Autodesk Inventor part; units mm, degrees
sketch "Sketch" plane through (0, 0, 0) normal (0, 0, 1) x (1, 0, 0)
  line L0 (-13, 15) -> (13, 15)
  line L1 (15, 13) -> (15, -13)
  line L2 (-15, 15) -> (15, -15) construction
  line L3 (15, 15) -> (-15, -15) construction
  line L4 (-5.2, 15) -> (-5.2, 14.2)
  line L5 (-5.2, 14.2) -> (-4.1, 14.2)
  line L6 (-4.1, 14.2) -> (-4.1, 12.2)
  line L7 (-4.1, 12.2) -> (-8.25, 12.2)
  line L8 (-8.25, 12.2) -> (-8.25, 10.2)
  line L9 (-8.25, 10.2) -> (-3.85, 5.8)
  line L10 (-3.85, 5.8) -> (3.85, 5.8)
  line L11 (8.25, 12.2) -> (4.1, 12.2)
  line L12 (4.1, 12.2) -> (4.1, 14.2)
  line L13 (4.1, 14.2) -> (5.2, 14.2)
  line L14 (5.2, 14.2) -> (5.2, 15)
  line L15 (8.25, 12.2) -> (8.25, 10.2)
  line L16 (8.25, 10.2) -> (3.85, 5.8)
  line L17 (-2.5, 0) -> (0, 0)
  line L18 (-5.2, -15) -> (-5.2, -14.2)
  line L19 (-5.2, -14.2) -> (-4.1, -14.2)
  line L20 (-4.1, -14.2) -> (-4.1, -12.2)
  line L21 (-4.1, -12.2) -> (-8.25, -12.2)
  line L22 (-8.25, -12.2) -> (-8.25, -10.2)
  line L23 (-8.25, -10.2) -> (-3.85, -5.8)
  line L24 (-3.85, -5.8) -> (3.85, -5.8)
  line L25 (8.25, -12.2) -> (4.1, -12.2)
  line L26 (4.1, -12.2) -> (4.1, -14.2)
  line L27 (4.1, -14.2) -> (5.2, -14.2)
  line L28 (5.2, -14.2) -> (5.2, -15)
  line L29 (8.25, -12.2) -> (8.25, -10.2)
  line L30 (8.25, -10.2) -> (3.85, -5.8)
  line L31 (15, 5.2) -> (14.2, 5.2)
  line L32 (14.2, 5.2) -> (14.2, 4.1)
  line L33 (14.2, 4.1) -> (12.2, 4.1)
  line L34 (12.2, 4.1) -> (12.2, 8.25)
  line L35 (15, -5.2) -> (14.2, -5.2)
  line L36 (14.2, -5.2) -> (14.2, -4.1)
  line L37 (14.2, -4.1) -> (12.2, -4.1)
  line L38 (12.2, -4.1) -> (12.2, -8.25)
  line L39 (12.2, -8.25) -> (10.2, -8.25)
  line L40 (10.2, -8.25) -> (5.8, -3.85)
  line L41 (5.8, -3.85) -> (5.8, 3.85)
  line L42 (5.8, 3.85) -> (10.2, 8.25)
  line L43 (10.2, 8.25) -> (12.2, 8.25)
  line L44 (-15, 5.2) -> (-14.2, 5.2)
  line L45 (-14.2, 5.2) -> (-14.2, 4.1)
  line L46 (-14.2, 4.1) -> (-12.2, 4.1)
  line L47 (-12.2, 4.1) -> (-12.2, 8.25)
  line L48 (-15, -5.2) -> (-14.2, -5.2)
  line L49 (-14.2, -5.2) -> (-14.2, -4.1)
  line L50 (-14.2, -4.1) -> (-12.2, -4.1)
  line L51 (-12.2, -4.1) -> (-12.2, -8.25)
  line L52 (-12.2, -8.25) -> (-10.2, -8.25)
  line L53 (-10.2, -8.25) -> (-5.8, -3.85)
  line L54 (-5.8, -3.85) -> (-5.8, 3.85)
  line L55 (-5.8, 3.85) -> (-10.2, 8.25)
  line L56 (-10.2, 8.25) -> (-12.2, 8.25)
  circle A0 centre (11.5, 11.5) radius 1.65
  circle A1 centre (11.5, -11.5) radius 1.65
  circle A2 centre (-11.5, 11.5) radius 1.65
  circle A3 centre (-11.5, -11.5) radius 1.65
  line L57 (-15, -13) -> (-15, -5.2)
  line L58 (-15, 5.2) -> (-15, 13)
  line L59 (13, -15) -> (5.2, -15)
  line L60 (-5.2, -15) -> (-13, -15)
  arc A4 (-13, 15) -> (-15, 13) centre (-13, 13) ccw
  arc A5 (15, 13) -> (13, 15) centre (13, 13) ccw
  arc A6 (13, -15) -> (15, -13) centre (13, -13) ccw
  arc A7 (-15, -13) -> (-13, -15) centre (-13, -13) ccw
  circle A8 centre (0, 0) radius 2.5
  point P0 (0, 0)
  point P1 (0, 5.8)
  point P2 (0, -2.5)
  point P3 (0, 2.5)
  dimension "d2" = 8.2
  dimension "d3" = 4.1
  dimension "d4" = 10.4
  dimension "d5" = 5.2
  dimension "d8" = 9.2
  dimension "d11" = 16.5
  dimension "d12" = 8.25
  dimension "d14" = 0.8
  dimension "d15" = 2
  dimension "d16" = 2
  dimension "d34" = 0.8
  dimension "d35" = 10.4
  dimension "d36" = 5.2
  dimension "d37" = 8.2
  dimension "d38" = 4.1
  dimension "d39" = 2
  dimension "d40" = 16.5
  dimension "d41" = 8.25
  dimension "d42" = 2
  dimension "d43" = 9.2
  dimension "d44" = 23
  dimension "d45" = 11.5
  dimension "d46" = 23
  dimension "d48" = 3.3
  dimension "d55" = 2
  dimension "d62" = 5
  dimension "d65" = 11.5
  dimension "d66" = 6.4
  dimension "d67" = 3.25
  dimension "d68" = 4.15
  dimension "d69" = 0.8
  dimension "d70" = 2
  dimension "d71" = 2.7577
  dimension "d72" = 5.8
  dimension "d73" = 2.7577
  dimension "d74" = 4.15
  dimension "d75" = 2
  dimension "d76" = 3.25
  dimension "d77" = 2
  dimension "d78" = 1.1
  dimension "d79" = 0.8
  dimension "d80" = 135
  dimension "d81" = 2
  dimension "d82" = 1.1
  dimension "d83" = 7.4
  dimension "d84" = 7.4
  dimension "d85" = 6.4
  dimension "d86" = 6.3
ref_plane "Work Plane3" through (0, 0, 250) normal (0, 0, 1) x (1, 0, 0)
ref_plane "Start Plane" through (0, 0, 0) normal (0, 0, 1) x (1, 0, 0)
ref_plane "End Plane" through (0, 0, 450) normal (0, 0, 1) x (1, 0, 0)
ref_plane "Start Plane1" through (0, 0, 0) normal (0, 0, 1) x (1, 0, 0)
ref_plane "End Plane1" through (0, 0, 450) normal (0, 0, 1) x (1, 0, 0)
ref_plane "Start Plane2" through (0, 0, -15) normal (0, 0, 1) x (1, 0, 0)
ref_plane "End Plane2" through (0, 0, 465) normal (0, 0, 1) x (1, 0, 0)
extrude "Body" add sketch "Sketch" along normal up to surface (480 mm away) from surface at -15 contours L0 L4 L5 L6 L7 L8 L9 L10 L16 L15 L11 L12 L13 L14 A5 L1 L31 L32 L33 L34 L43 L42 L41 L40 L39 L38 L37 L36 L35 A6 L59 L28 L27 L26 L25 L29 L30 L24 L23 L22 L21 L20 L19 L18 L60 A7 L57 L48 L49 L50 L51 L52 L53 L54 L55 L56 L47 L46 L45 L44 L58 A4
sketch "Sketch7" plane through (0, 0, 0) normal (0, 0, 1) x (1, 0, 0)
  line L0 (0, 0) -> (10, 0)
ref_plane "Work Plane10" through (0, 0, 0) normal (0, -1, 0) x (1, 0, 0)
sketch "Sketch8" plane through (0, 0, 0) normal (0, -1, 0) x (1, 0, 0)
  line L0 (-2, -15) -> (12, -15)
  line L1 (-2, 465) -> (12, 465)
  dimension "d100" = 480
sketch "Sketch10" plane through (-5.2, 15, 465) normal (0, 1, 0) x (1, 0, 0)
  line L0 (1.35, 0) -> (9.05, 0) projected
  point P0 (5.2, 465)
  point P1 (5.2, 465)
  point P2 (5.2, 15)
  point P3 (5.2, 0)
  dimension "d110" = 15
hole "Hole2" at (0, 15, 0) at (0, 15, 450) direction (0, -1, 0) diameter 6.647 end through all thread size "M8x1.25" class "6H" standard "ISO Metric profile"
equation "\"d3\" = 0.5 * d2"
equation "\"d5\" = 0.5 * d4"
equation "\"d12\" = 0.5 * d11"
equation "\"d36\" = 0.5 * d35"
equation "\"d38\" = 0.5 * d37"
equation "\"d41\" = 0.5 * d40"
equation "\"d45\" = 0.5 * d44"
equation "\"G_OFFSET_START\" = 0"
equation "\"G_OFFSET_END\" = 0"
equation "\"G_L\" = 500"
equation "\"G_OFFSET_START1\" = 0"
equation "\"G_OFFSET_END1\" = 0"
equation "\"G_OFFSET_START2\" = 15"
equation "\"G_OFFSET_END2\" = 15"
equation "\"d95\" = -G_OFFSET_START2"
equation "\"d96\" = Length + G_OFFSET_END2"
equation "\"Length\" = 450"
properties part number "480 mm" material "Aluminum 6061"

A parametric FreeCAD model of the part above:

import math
import FreeCAD as App
import Part
import Sketcher

V = App.Vector
Q = App.Units.Quantity

doc = App.newDocument("Part")
params = doc.addObject("Spreadsheet::Sheet", "Params")
for row, (alias, value) in enumerate([
    ("sketch1_diameter", "5 mm"),
    ("sketch1_radius", "2 mm"),
    ("sketch1_diameter2", "3.3 mm"),
    ("sketch1_width", "2 mm"),
    ("sketch1_width2", "0.8 mm"),
    ("pad1_length", "480 mm"),
    ("hole_diameter", "6.647 mm"),
], start=1):
    params.set(f"A{row}", alias)
    params.set(f"B{row}", "=" + value)
    params.setAlias(f"B{row}", alias)

body = doc.addObject("PartDesign::Body", "Body")

sketch1 = body.newObject("Sketcher::SketchObject", "Sketch")
sketch1.AttachmentSupport = (doc.getObject("XY_Plane"), [""])
sketch1.MapMode = "FlatFace"
sketch1.AttachmentOffset = App.Placement(V(0, 0, -15), App.Rotation())
sketch1.addGeometry([
    Part.LineSegment(V(-5.2, 15, 0), V(-13, 15, 0)),
    Part.ArcOfCircle(Part.Circle(V(-13, 13, 0), V(0, 0, 1), 2), math.radians(90), math.radians(180)),
    Part.LineSegment(V(-15, 13, 0), V(-15, 5.2, 0)),
    Part.LineSegment(V(-15, 5.2, 0), V(-14.2, 5.2, 0)),
    Part.LineSegment(V(-14.2, 5.2, 0), V(-14.2, 4.1, 0)),
    Part.LineSegment(V(-14.2, 4.1, 0), V(-12.2, 4.1, 0)),
    Part.LineSegment(V(-12.2, 4.1, 0), V(-12.2, 8.25, 0)),
    Part.LineSegment(V(-12.2, 8.25, 0), V(-10.2, 8.25, 0)),
    Part.LineSegment(V(-10.2, 8.25, 0), V(-5.8, 3.85, 0)),
    Part.LineSegment(V(-5.8, 3.85, 0), V(-5.8, -3.85, 0)),
    Part.LineSegment(V(-5.8, -3.85, 0), V(-10.2, -8.25, 0)),
    Part.LineSegment(V(-10.2, -8.25, 0), V(-12.2, -8.25, 0)),
    Part.LineSegment(V(-12.2, -8.25, 0), V(-12.2, -4.1, 0)),
    Part.LineSegment(V(-12.2, -4.1, 0), V(-14.2, -4.1, 0)),
    Part.LineSegment(V(-14.2, -4.1, 0), V(-14.2, -5.2, 0)),
    Part.LineSegment(V(-14.2, -5.2, 0), V(-15, -5.2, 0)),
    Part.LineSegment(V(-15, -5.2, 0), V(-15, -13, 0)),
    Part.ArcOfCircle(Part.Circle(V(-13, -13, 0), V(0, 0, 1), 2), math.radians(180), math.radians(270)),
    Part.LineSegment(V(-13, -15, 0), V(-5.2, -15, 0)),
    Part.LineSegment(V(-5.2, -15, 0), V(-5.2, -14.2, 0)),
    Part.LineSegment(V(-5.2, -14.2, 0), V(-4.1, -14.2, 0)),
    Part.LineSegment(V(-4.1, -14.2, 0), V(-4.1, -12.2, 0)),
    Part.LineSegment(V(-4.1, -12.2, 0), V(-8.25, -12.2, 0)),
    Part.LineSegment(V(-8.25, -12.2, 0), V(-8.25, -10.2, 0)),
    Part.LineSegment(V(-8.25, -10.2, 0), V(-3.85, -5.8, 0)),
    Part.LineSegment(V(-3.85, -5.8, 0), V(3.85, -5.8, 0)),
    Part.LineSegment(V(3.85, -5.8, 0), V(8.25, -10.2, 0)),
    Part.LineSegment(V(8.25, -10.2, 0), V(8.25, -12.2, 0)),
    Part.LineSegment(V(8.25, -12.2, 0), V(4.1, -12.2, 0)),
    Part.LineSegment(V(4.1, -12.2, 0), V(4.1, -14.2, 0)),
    Part.LineSegment(V(4.1, -14.2, 0), V(5.2, -14.2, 0)),
    Part.LineSegment(V(5.2, -14.2, 0), V(5.2, -15, 0)),
    Part.LineSegment(V(5.2, -15, 0), V(13, -15, 0)),
    Part.ArcOfCircle(Part.Circle(V(13, -13, 0), V(0, 0, 1), 2), math.radians(-90), math.radians(0)),
    Part.LineSegment(V(15, -13, 0), V(15, -5.2, 0)),
    Part.LineSegment(V(15, -5.2, 0), V(14.2, -5.2, 0)),
    Part.LineSegment(V(14.2, -5.2, 0), V(14.2, -4.1, 0)),
    Part.LineSegment(V(14.2, -4.1, 0), V(12.2, -4.1, 0)),
    Part.LineSegment(V(12.2, -4.1, 0), V(12.2, -8.25, 0)),
    Part.LineSegment(V(12.2, -8.25, 0), V(10.2, -8.25, 0)),
    Part.LineSegment(V(10.2, -8.25, 0), V(5.8, -3.85, 0)),
    Part.LineSegment(V(5.8, -3.85, 0), V(5.8, 3.85, 0)),
    Part.LineSegment(V(5.8, 3.85, 0), V(10.2, 8.25, 0)),
    Part.LineSegment(V(10.2, 8.25, 0), V(12.2, 8.25, 0)),
    Part.LineSegment(V(12.2, 8.25, 0), V(12.2, 4.1, 0)),
    Part.LineSegment(V(12.2, 4.1, 0), V(14.2, 4.1, 0)),
    Part.LineSegment(V(14.2, 4.1, 0), V(14.2, 5.2, 0)),
    Part.LineSegment(V(14.2, 5.2, 0), V(15, 5.2, 0)),
    Part.LineSegment(V(15, 5.2, 0), V(15, 13, 0)),
    Part.ArcOfCircle(Part.Circle(V(13, 13, 0), V(0, 0, 1), 2), math.radians(0), math.radians(90)),
    Part.LineSegment(V(13, 15, 0), V(5.2, 15, 0)),
    Part.LineSegment(V(5.2, 15, 0), V(5.2, 14.2, 0)),
    Part.LineSegment(V(5.2, 14.2, 0), V(4.1, 14.2, 0)),
    Part.LineSegment(V(4.1, 14.2, 0), V(4.1, 12.2, 0)),
    Part.LineSegment(V(4.1, 12.2, 0), V(8.25, 12.2, 0)),
    Part.LineSegment(V(8.25, 12.2, 0), V(8.25, 10.2, 0)),
    Part.LineSegment(V(8.25, 10.2, 0), V(3.85, 5.8, 0)),
    Part.LineSegment(V(3.85, 5.8, 0), V(-3.85, 5.8, 0)),
    Part.LineSegment(V(-3.85, 5.8, 0), V(-8.25, 10.2, 0)),
    Part.LineSegment(V(-8.25, 10.2, 0), V(-8.25, 12.2, 0)),
    Part.LineSegment(V(-8.25, 12.2, 0), V(-4.1, 12.2, 0)),
    Part.LineSegment(V(-4.1, 12.2, 0), V(-4.1, 14.2, 0)),
    Part.LineSegment(V(-4.1, 14.2, 0), V(-5.2, 14.2, 0)),
    Part.LineSegment(V(-5.2, 14.2, 0), V(-5.2, 15, 0)),
    Part.Circle(V(-11.5, -11.5, 0), V(0, 0, 1), 1.65),
    Part.Circle(V(11.5, -11.5, 0), V(0, 0, 1), 1.65),
    Part.Circle(V(-11.5, 11.5, 0), V(0, 0, 1), 1.65),
    Part.Circle(V(0, 0, 0), V(0, 0, 1), 2.5),
    Part.Circle(V(11.5, 11.5, 0), V(0, 0, 1), 1.65),
], False)
sketch1.addConstraint([
    Sketcher.Constraint("Tangent", 0, 2, 1, 1),
    Sketcher.Constraint("Tangent", 1, 2, 2, 1),
    Sketcher.Constraint("Coincident", 2, 2, 3, 1),
    Sketcher.Constraint("Coincident", 3, 2, 4, 1),
    Sketcher.Constraint("Coincident", 4, 2, 5, 1),
    Sketcher.Constraint("Coincident", 5, 2, 6, 1),
    Sketcher.Constraint("Coincident", 6, 2, 7, 1),
    Sketcher.Constraint("Coincident", 7, 2, 8, 1),
    Sketcher.Constraint("Coincident", 8, 2, 9, 1),
    Sketcher.Constraint("Coincident", 9, 2, 10, 1),
    Sketcher.Constraint("Coincident", 10, 2, 11, 1),
    Sketcher.Constraint("Coincident", 11, 2, 12, 1),
    Sketcher.Constraint("Coincident", 12, 2, 13, 1),
    Sketcher.Constraint("Coincident", 13, 2, 14, 1),
    Sketcher.Constraint("Coincident", 14, 2, 15, 1),
    Sketcher.Constraint("Coincident", 15, 2, 16, 1),
    Sketcher.Constraint("Tangent", 16, 2, 17, 1),
    Sketcher.Constraint("Tangent", 17, 2, 18, 1),
    Sketcher.Constraint("Coincident", 18, 2, 19, 1),
    Sketcher.Constraint("Coincident", 19, 2, 20, 1),
    Sketcher.Constraint("Coincident", 20, 2, 21, 1),
    Sketcher.Constraint("Coincident", 21, 2, 22, 1),
    Sketcher.Constraint("Coincident", 22, 2, 23, 1),
    Sketcher.Constraint("Coincident", 23, 2, 24, 1),
    Sketcher.Constraint("Coincident", 24, 2, 25, 1),
    Sketcher.Constraint("Coincident", 25, 2, 26, 1),
    Sketcher.Constraint("Coincident", 26, 2, 27, 1),
    Sketcher.Constraint("Coincident", 27, 2, 28, 1),
    Sketcher.Constraint("Coincident", 28, 2, 29, 1),
    Sketcher.Constraint("Coincident", 29, 2, 30, 1),
    Sketcher.Constraint("Coincident", 30, 2, 31, 1),
    Sketcher.Constraint("Coincident", 31, 2, 32, 1),
    Sketcher.Constraint("Tangent", 32, 2, 33, 1),
    Sketcher.Constraint("Tangent", 33, 2, 34, 1),
    Sketcher.Constraint("Coincident", 34, 2, 35, 1),
    Sketcher.Constraint("Coincident", 35, 2, 36, 1),
    Sketcher.Constraint("Coincident", 36, 2, 37, 1),
    Sketcher.Constraint("Coincident", 37, 2, 38, 1),
    Sketcher.Constraint("Coincident", 38, 2, 39, 1),
    Sketcher.Constraint("Coincident", 39, 2, 40, 1),
    Sketcher.Constraint("Coincident", 40, 2, 41, 1),
    Sketcher.Constraint("Coincident", 41, 2, 42, 1),
    Sketcher.Constraint("Coincident", 42, 2, 43, 1),
    Sketcher.Constraint("Coincident", 43, 2, 44, 1),
    Sketcher.Constraint("Coincident", 44, 2, 45, 1),
    Sketcher.Constraint("Coincident", 45, 2, 46, 1),
    Sketcher.Constraint("Coincident", 46, 2, 47, 1),
    Sketcher.Constraint("Coincident", 47, 2, 48, 1),
    Sketcher.Constraint("Tangent", 48, 2, 49, 1),
    Sketcher.Constraint("Tangent", 49, 2, 50, 1),
    Sketcher.Constraint("Coincident", 50, 2, 51, 1),
    Sketcher.Constraint("Coincident", 51, 2, 52, 1),
    Sketcher.Constraint("Coincident", 52, 2, 53, 1),
    Sketcher.Constraint("Coincident", 53, 2, 54, 1),
    Sketcher.Constraint("Coincident", 54, 2, 55, 1),
    Sketcher.Constraint("Coincident", 55, 2, 56, 1),
    Sketcher.Constraint("Coincident", 56, 2, 57, 1),
    Sketcher.Constraint("Coincident", 57, 2, 58, 1),
    Sketcher.Constraint("Coincident", 58, 2, 59, 1),
    Sketcher.Constraint("Coincident", 59, 2, 60, 1),
    Sketcher.Constraint("Coincident", 60, 2, 61, 1),
    Sketcher.Constraint("Coincident", 61, 2, 62, 1),
    Sketcher.Constraint("Coincident", 62, 2, 63, 1),
    Sketcher.Constraint("Coincident", 63, 2, 0, 1),
    Sketcher.Constraint("Horizontal", 0),
    Sketcher.Constraint("Vertical", 2),
    Sketcher.Constraint("Horizontal", 3),
    Sketcher.Constraint("Vertical", 4),
    Sketcher.Constraint("Horizontal", 5),
    Sketcher.Constraint("Vertical", 6),
    Sketcher.Constraint("Horizontal", 7),
    Sketcher.Constraint("Vertical", 9),
    Sketcher.Constraint("Horizontal", 11),
    Sketcher.Constraint("Vertical", 12),
    Sketcher.Constraint("Horizontal", 13),
    Sketcher.Constraint("Vertical", 14),
    Sketcher.Constraint("Horizontal", 15),
    Sketcher.Constraint("Vertical", 16),
    Sketcher.Constraint("Horizontal", 18),
    Sketcher.Constraint("Vertical", 19),
    Sketcher.Constraint("Horizontal", 20),
    Sketcher.Constraint("Vertical", 21),
    Sketcher.Constraint("Horizontal", 22),
    Sketcher.Constraint("Vertical", 23),
    Sketcher.Constraint("Horizontal", 25),
    Sketcher.Constraint("Vertical", 27),
    Sketcher.Constraint("Horizontal", 28),
    Sketcher.Constraint("Vertical", 29),
    Sketcher.Constraint("Horizontal", 30),
    Sketcher.Constraint("Vertical", 31),
    Sketcher.Constraint("Horizontal", 32),
    Sketcher.Constraint("Vertical", 34),
    Sketcher.Constraint("Horizontal", 35),
    Sketcher.Constraint("Vertical", 36),
    Sketcher.Constraint("Horizontal", 37),
    Sketcher.Constraint("Vertical", 38),
    Sketcher.Constraint("Horizontal", 39),
    Sketcher.Constraint("Vertical", 41),
    Sketcher.Constraint("Horizontal", 43),
    Sketcher.Constraint("Vertical", 44),
    Sketcher.Constraint("Horizontal", 45),
    Sketcher.Constraint("Vertical", 46),
    Sketcher.Constraint("Horizontal", 47),
    Sketcher.Constraint("Vertical", 48),
    Sketcher.Constraint("Horizontal", 50),
    Sketcher.Constraint("Vertical", 51),
    Sketcher.Constraint("Horizontal", 52),
    Sketcher.Constraint("Vertical", 53),
    Sketcher.Constraint("Horizontal", 54),
    Sketcher.Constraint("Vertical", 55),
    Sketcher.Constraint("Horizontal", 57),
    Sketcher.Constraint("Vertical", 59),
    Sketcher.Constraint("Horizontal", 60),
    Sketcher.Constraint("Vertical", 61),
    Sketcher.Constraint("Horizontal", 62),
    Sketcher.Constraint("Vertical", 63),
    Sketcher.Constraint("Coincident", 67, 3, -1, 1),
    Sketcher.Constraint("Equal", 1, 17),
    Sketcher.Constraint("Equal", 17, 33),
    Sketcher.Constraint("Equal", 33, 49),
    Sketcher.Constraint("Equal", 64, 65),
    Sketcher.Constraint("Equal", 65, 66),
    Sketcher.Constraint("Equal", 66, 68),
    Sketcher.Constraint("Symmetric", 1, 3, 33, 3, -1, 1),
    Sketcher.Constraint("Symmetric", 17, 3, 49, 3, -1, 1),
    Sketcher.Constraint("Symmetric", 65, 3, 66, 3, -1, 1),
    Sketcher.Constraint("Symmetric", 64, 3, 68, 3, -1, 1),
    Sketcher.Constraint("Symmetric", 3, 2, 35, 2, -1, 1),
    Sketcher.Constraint("Symmetric", 5, 2, 37, 2, -1, 1),
    Sketcher.Constraint("Symmetric", 7, 2, 39, 2, -1, 1),
    Sketcher.Constraint("Symmetric", 8, 2, 40, 2, -1, 1),
    Sketcher.Constraint("Symmetric", 10, 2, 42, 2, -1, 1),
    Sketcher.Constraint("Symmetric", 12, 2, 44, 2, -1, 1),
    Sketcher.Constraint("Symmetric", 14, 2, 46, 2, -1, 1),
    Sketcher.Constraint("Symmetric", 19, 2, 51, 2, -1, 1),
    Sketcher.Constraint("Symmetric", 21, 2, 53, 2, -1, 1),
    Sketcher.Constraint("Symmetric", 23, 2, 55, 2, -1, 1),
    Sketcher.Constraint("Symmetric", 24, 2, 56, 2, -1, 1),
    Sketcher.Constraint("Symmetric", 26, 2, 58, 2, -1, 1),
    Sketcher.Constraint("Symmetric", 28, 2, 60, 2, -1, 1),
    Sketcher.Constraint("Symmetric", 30, 2, 62, 2, -1, 1),
    Sketcher.Constraint("Symmetric", 17, 3, 33, 3, -2),
    Sketcher.Constraint("Symmetric", 64, 3, 65, 3, -2),
    Sketcher.Constraint("Symmetric", 23, 2, 26, 2, -2),
    Sketcher.Constraint("Symmetric", 21, 2, 28, 2, -2),
    Sketcher.Constraint("Symmetric", 19, 2, 30, 2, -2),
    Sketcher.Constraint("Symmetric", 14, 2, 35, 2, -2),
    Sketcher.Constraint("Symmetric", 12, 2, 37, 2, -2),
    Sketcher.Constraint("Symmetric", 10, 2, 39, 2, -2),
    Sketcher.Constraint("Perpendicular", 8, 10),
    Sketcher.Constraint("Parallel", 10, 24),
    Sketcher.Constraint("Perpendicular", 24, 26),
    Sketcher.Constraint("Perpendicular", 40, 42),
    Sketcher.Constraint("Perpendicular", 56, 58),
    Sketcher.Constraint("Horizontal", 9, 2, 40, 2),
    Sketcher.Constraint("Equal", 5, 7),
    Sketcher.Constraint("Equal", 50, 2),
    Sketcher.Constraint("Equal", 62, 4),
    Sketcher.Constraint("Equal", 60, 6),
    Sketcher.Constraint("Equal", 57, 9),
    Sketcher.Constraint("Equal", 47, 19),
    Sketcher.Constraint("Equal", 45, 21),
    Sketcher.Constraint("Equal", 21, 23),
    Sketcher.Constraint("Equal", 10, 24),
    Sketcher.Constraint("Diameter", 67, Q("5 mm")),
    Sketcher.Constraint("Radius", 1, Q("2 mm")),
    Sketcher.Constraint("Diameter", 64, Q("3.3 mm")),
    Sketcher.Constraint("DistanceX", 5, 1, 5, 2, Q("2 mm")),
    Sketcher.Constraint("DistanceX", 3, 1, 3, 2, Q("0.8 mm")),
    Sketcher.Constraint("DistanceX", 20, 1, 20, 2, Q("1.1 mm")),
    Sketcher.Constraint("DistanceX", 22, 2, 22, 1, Q("4.15 mm")),
    Sketcher.Constraint("DistanceX", 64, 3, -1, 1, Q("11.5 mm")),
    Sketcher.Constraint("DistanceY", 64, 3, -1, 1, Q("11.5 mm")),
    Sketcher.Constraint("DistanceY", -1, 1, 2, 2, Q("5.2 mm")),
    Sketcher.Constraint("DistanceX", 8, 2, -1, 1, Q("5.8 mm")),
    Sketcher.Constraint("DistanceX", 0, 2, 0, 1, Q("7.8 mm")),
])
sketch1.setExpression("Constraints[164]", "Params.sketch1_diameter")
sketch1.setExpression("Constraints[165]", "Params.sketch1_radius")
sketch1.setExpression("Constraints[166]", "Params.sketch1_diameter2")
sketch1.setExpression("Constraints[167]", "Params.sketch1_width")
sketch1.setExpression("Constraints[168]", "Params.sketch1_width2")
pad1 = body.newObject("PartDesign::Pad", "Pad")
pad1.Profile = sketch1
pad1.setExpression("Length", "Params.pad1_length")

sketch2 = body.newObject("Sketcher::SketchObject", "Sketch001")
sketch2.AttachmentSupport = (doc.getObject("XZ_Plane"), [""])
sketch2.MapMode = "FlatFace"
sketch2.AttachmentOffset = App.Placement(V(0, 0, -15), App.Rotation())
sketch2.addGeometry([
    Part.Circle(V(0, 0, 0), V(0, 0, 1), 3.3235),
    Part.Circle(V(0, 450, 0), V(0, 0, 1), 3.3235),
], False)
sketch2.addConstraint([
    Sketcher.Constraint("Coincident", 0, 3, -1, 1),
    Sketcher.Constraint("Equal", 0, 1),
    Sketcher.Constraint("PointOnObject", 1, 3, -2),
    Sketcher.Constraint("Diameter", 0, Q("6.647 mm")),
    Sketcher.Constraint("DistanceY", -1, 1, 1, 3, Q("450 mm")),
])
doc.recompute()
hole = body.newObject("PartDesign::Hole", "Hole")
hole.Profile = sketch2
hole.ThreadType = "None"
hole.setExpression("Diameter", "Params.hole_diameter")
hole.DepthType = "ThroughAll"
hole.Reversed = True

doc.recompute()
